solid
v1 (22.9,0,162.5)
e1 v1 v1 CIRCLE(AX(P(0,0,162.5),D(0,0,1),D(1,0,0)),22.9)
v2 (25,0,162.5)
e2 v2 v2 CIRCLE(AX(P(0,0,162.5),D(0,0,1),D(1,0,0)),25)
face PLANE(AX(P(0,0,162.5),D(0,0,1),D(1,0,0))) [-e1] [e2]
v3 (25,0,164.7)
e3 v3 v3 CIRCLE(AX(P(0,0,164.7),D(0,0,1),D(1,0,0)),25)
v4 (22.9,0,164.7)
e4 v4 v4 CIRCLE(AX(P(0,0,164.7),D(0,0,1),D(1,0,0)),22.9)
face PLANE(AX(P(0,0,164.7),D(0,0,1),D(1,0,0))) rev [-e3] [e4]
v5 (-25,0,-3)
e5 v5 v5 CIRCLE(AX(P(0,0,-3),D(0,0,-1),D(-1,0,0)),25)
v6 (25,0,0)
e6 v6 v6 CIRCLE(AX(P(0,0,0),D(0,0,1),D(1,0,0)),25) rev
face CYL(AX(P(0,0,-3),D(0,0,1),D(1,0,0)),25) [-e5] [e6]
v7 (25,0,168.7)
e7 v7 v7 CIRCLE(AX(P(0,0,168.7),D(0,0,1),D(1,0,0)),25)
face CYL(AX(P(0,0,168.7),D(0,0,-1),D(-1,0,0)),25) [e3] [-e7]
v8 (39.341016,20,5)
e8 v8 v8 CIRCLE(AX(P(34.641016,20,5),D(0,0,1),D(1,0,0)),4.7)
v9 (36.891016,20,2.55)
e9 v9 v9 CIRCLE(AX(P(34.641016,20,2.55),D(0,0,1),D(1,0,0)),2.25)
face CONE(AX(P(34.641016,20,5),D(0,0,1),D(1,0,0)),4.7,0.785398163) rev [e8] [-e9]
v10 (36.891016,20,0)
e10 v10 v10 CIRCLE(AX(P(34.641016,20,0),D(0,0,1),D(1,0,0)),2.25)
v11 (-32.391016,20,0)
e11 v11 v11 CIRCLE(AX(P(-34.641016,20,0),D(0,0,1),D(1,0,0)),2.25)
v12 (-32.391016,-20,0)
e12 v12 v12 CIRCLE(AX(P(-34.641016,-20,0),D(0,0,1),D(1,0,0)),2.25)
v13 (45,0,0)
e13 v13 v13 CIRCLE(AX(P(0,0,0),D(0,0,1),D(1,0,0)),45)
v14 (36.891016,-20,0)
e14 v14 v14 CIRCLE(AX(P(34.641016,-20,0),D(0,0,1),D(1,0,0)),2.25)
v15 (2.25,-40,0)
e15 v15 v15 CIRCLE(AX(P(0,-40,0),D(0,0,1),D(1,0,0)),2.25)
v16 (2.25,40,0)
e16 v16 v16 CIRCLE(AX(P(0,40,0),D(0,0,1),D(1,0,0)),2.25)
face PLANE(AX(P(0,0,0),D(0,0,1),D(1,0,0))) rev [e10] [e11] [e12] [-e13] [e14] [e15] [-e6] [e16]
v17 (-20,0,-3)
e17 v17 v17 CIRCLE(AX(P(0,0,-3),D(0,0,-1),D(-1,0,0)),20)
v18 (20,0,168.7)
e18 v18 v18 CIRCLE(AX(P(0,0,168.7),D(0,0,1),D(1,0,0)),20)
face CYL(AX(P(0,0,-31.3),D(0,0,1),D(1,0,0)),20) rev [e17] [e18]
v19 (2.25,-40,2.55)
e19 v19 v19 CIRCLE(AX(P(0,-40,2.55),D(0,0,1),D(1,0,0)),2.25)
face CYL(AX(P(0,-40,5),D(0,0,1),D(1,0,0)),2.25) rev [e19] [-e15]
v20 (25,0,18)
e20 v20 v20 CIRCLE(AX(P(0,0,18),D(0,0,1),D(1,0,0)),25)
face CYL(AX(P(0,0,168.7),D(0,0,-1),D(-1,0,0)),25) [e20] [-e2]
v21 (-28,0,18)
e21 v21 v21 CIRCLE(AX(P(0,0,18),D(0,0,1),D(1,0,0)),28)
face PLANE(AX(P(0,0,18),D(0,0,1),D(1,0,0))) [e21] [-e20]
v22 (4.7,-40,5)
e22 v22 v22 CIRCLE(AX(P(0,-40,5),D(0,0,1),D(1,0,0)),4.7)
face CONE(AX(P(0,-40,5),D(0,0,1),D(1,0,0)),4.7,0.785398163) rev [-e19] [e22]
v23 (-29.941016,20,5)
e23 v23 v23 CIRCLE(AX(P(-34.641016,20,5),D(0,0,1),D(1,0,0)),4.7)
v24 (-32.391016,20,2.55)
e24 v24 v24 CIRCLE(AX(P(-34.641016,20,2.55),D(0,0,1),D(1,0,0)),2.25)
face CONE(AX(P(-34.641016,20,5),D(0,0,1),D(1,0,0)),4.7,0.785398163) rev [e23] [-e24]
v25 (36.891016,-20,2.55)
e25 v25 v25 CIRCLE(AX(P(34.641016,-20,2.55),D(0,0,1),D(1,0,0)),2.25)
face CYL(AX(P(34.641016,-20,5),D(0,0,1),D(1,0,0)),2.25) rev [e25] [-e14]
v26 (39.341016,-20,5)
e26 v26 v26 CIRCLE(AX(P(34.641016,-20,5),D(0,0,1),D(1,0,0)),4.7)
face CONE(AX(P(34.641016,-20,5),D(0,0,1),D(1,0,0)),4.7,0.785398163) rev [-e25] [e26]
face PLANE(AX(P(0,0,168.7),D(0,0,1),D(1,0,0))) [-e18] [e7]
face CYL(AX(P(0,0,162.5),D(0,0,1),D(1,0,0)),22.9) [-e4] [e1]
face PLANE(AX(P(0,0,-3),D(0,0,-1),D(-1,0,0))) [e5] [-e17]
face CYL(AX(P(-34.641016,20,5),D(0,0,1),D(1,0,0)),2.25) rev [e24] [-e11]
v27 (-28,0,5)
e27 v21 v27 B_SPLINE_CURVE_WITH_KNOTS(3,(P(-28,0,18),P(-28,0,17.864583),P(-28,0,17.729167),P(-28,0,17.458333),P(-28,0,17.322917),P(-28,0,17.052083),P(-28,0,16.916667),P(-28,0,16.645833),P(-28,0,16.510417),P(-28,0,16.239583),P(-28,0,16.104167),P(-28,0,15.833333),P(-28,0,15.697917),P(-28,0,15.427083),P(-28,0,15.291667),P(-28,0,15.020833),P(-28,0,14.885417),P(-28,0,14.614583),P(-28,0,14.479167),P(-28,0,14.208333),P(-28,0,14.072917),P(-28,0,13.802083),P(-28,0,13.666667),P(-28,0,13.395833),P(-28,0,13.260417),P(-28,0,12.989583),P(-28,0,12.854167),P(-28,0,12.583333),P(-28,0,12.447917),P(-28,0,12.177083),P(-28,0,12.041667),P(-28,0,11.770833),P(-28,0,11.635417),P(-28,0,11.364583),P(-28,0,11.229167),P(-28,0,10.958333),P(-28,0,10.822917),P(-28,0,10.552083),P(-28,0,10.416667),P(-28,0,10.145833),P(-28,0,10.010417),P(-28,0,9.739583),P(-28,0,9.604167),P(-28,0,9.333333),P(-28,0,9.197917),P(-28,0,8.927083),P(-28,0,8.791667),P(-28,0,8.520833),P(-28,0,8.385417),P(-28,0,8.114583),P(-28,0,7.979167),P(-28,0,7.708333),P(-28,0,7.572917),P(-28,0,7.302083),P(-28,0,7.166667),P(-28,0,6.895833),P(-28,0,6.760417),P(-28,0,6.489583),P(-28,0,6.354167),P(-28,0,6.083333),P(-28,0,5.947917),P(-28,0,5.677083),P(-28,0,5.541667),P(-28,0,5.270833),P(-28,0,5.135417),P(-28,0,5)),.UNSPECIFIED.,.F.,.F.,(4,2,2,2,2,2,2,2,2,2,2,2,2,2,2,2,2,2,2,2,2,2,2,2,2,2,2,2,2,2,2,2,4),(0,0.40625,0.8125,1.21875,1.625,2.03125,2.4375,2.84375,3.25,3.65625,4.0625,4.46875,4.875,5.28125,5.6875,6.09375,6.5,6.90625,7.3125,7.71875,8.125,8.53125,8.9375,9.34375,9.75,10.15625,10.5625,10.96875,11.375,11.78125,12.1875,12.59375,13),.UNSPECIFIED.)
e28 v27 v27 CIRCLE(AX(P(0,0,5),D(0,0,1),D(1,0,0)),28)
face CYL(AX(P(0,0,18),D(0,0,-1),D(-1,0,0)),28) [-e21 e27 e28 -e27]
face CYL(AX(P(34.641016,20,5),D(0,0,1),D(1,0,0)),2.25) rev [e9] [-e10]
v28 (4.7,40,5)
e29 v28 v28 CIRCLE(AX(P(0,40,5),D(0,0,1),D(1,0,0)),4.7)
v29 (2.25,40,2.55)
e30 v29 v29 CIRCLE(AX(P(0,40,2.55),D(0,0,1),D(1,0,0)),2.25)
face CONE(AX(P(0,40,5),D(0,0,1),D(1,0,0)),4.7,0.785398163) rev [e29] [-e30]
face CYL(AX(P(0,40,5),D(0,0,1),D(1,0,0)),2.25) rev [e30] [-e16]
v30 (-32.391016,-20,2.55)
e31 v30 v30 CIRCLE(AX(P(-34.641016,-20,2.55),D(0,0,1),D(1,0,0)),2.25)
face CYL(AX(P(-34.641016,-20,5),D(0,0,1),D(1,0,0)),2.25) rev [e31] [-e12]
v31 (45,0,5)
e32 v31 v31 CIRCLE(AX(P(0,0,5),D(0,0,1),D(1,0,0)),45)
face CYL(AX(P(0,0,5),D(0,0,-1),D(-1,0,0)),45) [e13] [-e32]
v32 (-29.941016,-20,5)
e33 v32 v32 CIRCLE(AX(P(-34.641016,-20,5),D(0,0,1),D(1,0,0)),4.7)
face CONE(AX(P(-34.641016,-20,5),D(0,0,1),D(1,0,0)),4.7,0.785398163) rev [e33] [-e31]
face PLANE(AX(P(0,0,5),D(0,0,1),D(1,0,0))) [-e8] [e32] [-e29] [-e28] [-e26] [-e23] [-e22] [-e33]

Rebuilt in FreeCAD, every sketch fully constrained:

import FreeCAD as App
import Part
import Sketcher
from FreeCAD import Vector

doc = App.newDocument("Part")
body = doc.addObject("PartDesign::Body", "Body")

# Sketch on XY plane
sketch1 = doc.addObject("Sketcher::SketchObject", "Sketch")
body.addObject(sketch1)
sketch1.AttachmentSupport = (doc.XY_Plane, [""])
sketch1.MapMode = "FlatFace"
sketch1.addGeometry([
    Part.Circle(Vector(0, 0, 0), Vector(0, 0, 1), 45),  # 0
    Part.Circle(Vector(0, -40, 0), Vector(0, 0, 1), 2),  # 1
    Part.Circle(Vector(-34.6, -20, 0), Vector(0, 0, 1), 2),  # 2
    Part.Circle(Vector(34.6, -20, 0), Vector(0, 0, 1), 2),  # 3
    Part.Circle(Vector(-34.6, 20, 0), Vector(0, 0, 1), 2),  # 4
    Part.Circle(Vector(0, 40, 0), Vector(0, 0, 1), 2),  # 5
    Part.Circle(Vector(34.6, 20, 0), Vector(0, 0, 1), 2),  # 6
], False)
sketch1.addConstraint([
    Sketcher.Constraint("Coincident", 0, 3, -1, 1),
    Sketcher.Constraint("Equal", 1, 2),
    Sketcher.Constraint("Equal", 2, 3),
    Sketcher.Constraint("Equal", 3, 4),
    Sketcher.Constraint("Equal", 4, 5),
    Sketcher.Constraint("Equal", 5, 6),
    Sketcher.Constraint("Symmetric", 3, 3, 4, 3, -1, 1),
    Sketcher.Constraint("Symmetric", 1, 3, 5, 3, -1, 1),
    Sketcher.Constraint("Symmetric", 2, 3, 6, 3, -1, 1),
    Sketcher.Constraint("Symmetric", 2, 3, 3, 3, -2),
    Sketcher.Constraint("PointOnObject", 1, 3, -2),
    Sketcher.Constraint("Diameter", 0, 90.0),
    Sketcher.Constraint("Diameter", 1, 4.0),
    Sketcher.Constraint("DistanceY", 1, 3, -1, 1, 40.0),
    Sketcher.Constraint("DistanceY", 2, 3, -1, 1, 20.0),
    Sketcher.Constraint("DistanceX", 2, 3, -1, 1, 34.641016),
])
pad1 = doc.addObject("PartDesign::Pad", "Pad")
body.addObject(pad1)
pad1.Profile = sketch1
pad1.Length = 5

# Sketch on XY plane
sketch2 = doc.addObject("Sketcher::SketchObject", "Sketch001")
body.addObject(sketch2)
sketch2.AttachmentSupport = (doc.XY_Plane, [""])
sketch2.MapMode = "FlatFace"
sketch2.AttachmentOffset = App.Placement(Vector(0, 0, 5), App.Rotation())
sketch2.addGeometry(Part.Circle(Vector(0, 0, 0), Vector(0, 0, 1), 28), False)
sketch2.addConstraint([
    Sketcher.Constraint("Coincident", 0, 3, -1, 1),
    Sketcher.Constraint("Diameter", 0, 56.0),
])
pad2 = doc.addObject("PartDesign::Pad", "Pad001")
body.addObject(pad2)
pad2.Profile = sketch2
pad2.Length = 13

# Sketch on XY plane
sketch3 = doc.addObject("Sketcher::SketchObject", "Sketch002")
body.addObject(sketch3)
sketch3.AttachmentSupport = (doc.XY_Plane, [""])
sketch3.MapMode = "FlatFace"
sketch3.AttachmentOffset = App.Placement(Vector(0, 0, 18), App.Rotation())
sketch3.addGeometry(Part.Circle(Vector(0, 0, 0), Vector(0, 0, 1), 25), False)
sketch3.addConstraint([
    Sketcher.Constraint("Coincident", 0, 3, -1, 1),
    Sketcher.Constraint("Diameter", 0, 50.0),
])
pad3 = doc.addObject("PartDesign::Pad", "Pad002")
body.addObject(pad3)
pad3.Profile = sketch3
pad3.Length = 150.7

# Sketch on XY plane
sketch4 = doc.addObject("Sketcher::SketchObject", "Sketch003")
body.addObject(sketch4)
sketch4.AttachmentSupport = (doc.XY_Plane, [""])
sketch4.MapMode = "FlatFace"
sketch4.AttachmentOffset = App.Placement(Vector(0, 0, 168.7), App.Rotation())
sketch4.addGeometry(Part.Circle(Vector(0, 0, 0), Vector(0, 0, 1), 20), False)
sketch4.addConstraint([
    Sketcher.Constraint("Coincident", 0, 3, -1, 1),
    Sketcher.Constraint("Diameter", 0, 40.0),
])
pocket1 = doc.addObject("PartDesign::Pocket", "Pocket")
body.addObject(pocket1)
pocket1.Profile = sketch4
pocket1.Length = 200

# Sketch on XY plane
sketch5 = doc.addObject("Sketcher::SketchObject", "Sketch004")
body.addObject(sketch5)
sketch5.AttachmentSupport = (doc.XY_Plane, [""])
sketch5.MapMode = "FlatFace"
sketch5.AttachmentOffset = App.Placement(Vector(0, 0, 162.5), App.Rotation())
sketch5.addGeometry([
    Part.Circle(Vector(0, 0, 0), Vector(0, 0, 1), 25),
    Part.Circle(Vector(0, 0, 0), Vector(0, 0, 1), 23),
], False)
sketch5.addConstraint([
    Sketcher.Constraint("Coincident", 0, 3, -1, 1),
    Sketcher.Constraint("Coincident", 1, 3, -1, 1),
    Sketcher.Constraint("Diameter", 0, 50.0),
    Sketcher.Constraint("Diameter", 1, 45.8),
])
pocket2 = doc.addObject("PartDesign::Pocket", "Pocket001")
body.addObject(pocket2)
pocket2.Profile = sketch5
pocket2.Length = 2.2
pocket2.Reversed = True

# Sketch on XY plane
sketch6 = doc.addObject("Sketcher::SketchObject", "Sketch005")
body.addObject(sketch6)
sketch6.AttachmentSupport = (doc.XY_Plane, [""])
sketch6.MapMode = "FlatFace"
sketch6.AttachmentOffset = App.Placement(Vector(0, 0, -3), App.Rotation())
sketch6.addGeometry([
    Part.Circle(Vector(0, 0, 0), Vector(0, 0, 1), 25),
    Part.Circle(Vector(0, 0, 0), Vector(0, 0, 1), 20),
], False)
sketch6.addConstraint([
    Sketcher.Constraint("Coincident", 0, 3, -1, 1),
    Sketcher.Constraint("Coincident", 1, 3, -1, 1),
    Sketcher.Constraint("Diameter", 0, 50.0),
    Sketcher.Constraint("Diameter", 1, 40.0),
])
pad4 = doc.addObject("PartDesign::Pad", "Pad003")
body.addObject(pad4)
pad4.Profile = sketch6
pad4.Length = 3

# Sketch on XY plane
sketch7 = doc.addObject("Sketcher::SketchObject", "Sketch006")
body.addObject(sketch7)
sketch7.AttachmentSupport = (doc.XY_Plane, [""])
sketch7.MapMode = "FlatFace"
sketch7.AttachmentOffset = App.Placement(Vector(0, 0, 5), App.Rotation())
sketch7.addGeometry([
    Part.Circle(Vector(34.6, -20, 0), Vector(0, 0, 1), 2.2),  # 0
    Part.Circle(Vector(0, -40, 0), Vector(0, 0, 1), 2.2),  # 1
    Part.Circle(Vector(-34.6, -20, 0), Vector(0, 0, 1), 2.2),  # 2
    Part.Circle(Vector(-34.6, 20, 0), Vector(0, 0, 1), 2.2),  # 3
    Part.Circle(Vector(0, 40, 0), Vector(0, 0, 1), 2.2),  # 4
    Part.Circle(Vector(34.6, 20, 0), Vector(0, 0, 1), 2.2),  # 5
], False)
sketch7.addConstraint([
    Sketcher.Constraint("Equal", 0, 1),
    Sketcher.Constraint("Equal", 1, 2),
    Sketcher.Constraint("Equal", 2, 3),
    Sketcher.Constraint("Equal", 3, 4),
    Sketcher.Constraint("Equal", 4, 5),
    Sketcher.Constraint("Symmetric", 0, 3, 3, 3, -1, 1),
    Sketcher.Constraint("Symmetric", 1, 3, 4, 3, -1, 1),
    Sketcher.Constraint("Symmetric", 2, 3, 5, 3, -1, 1),
    Sketcher.Constraint("Symmetric", 0, 3, 2, 3, -2),
    Sketcher.Constraint("PointOnObject", 1, 3, -2),
    Sketcher.Constraint("Diameter", 0, 4.5),
    Sketcher.Constraint("DistanceY", 0, 3, -1, 1, 20.0),
    Sketcher.Constraint("DistanceY", 1, 3, -1, 1, 40.0),
    Sketcher.Constraint("DistanceX", -1, 1, 0, 3, 34.641016),
])
doc.recompute()
hole = doc.addObject("PartDesign::Hole", "Hole")
body.addObject(hole)
hole.Profile = sketch7
hole.ThreadType = "None"
hole.Diameter = 4.5
hole.DepthType = "ThroughAll"
hole.HoleCutType = "Countersink"
hole.HoleCutDiameter = 9.4
hole.HoleCutCountersinkAngle = 90

doc.recompute()
